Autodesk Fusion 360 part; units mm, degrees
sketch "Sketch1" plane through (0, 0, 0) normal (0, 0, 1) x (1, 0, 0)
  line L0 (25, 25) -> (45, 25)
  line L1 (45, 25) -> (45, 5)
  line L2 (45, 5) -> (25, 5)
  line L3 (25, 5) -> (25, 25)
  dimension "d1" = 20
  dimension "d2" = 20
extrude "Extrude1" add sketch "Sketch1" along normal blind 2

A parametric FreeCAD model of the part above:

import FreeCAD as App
import Part
import Sketcher
from FreeCAD import Vector
Q = App.Units.Quantity


def add_polygon(sketch, points):
    """Adds a closed chain of lines whose ends are joined by coincident constraints."""
    first, n = sketch.GeometryCount, len(points)
    for a, b in zip(points, points[1:] + points[:1]):
        sketch.addGeometry(Part.LineSegment(App.Vector(*a, 0), App.Vector(*b, 0)), False)
    for i in range(n):
        sketch.addConstraint(Sketcher.Constraint("Coincident", first + i, 2, first + (i + 1) % n, 1))

doc = App.newDocument("Part")
body = doc.addObject("PartDesign::Body", "Body")

sketch1 = body.newObject("Sketcher::SketchObject", "Sketch")
sketch1.AttachmentSupport = (doc.getObject("XY_Plane"), [""])
sketch1.MapMode = "FlatFace"
add_polygon(sketch1, [(45, 25), (25, 25), (25, 5), (45, 5)])
sketch1.addConstraint(Sketcher.Constraint("Horizontal", 0))
sketch1.addConstraint(Sketcher.Constraint("Vertical", 1))
sketch1.addConstraint(Sketcher.Constraint("Horizontal", 2))
sketch1.addConstraint(Sketcher.Constraint("Vertical", 3))
sketch1.addConstraint(Sketcher.Constraint("Equal", 2, 1))
sketch1.addConstraint(Sketcher.Constraint("DistanceX", 0, 2, 0, 1, Q("20 mm")))
sketch1.addConstraint(Sketcher.Constraint("DistanceX", -1, 1, 0, 2, Q("25 mm")))
sketch1.addConstraint(Sketcher.Constraint("DistanceY", -1, 1, 0, 2, Q("25 mm")))
pad1 = body.newObject("PartDesign::Pad", "Pad")
pad1.Profile = sketch1
pad1.Length = 2

doc.recompute()
